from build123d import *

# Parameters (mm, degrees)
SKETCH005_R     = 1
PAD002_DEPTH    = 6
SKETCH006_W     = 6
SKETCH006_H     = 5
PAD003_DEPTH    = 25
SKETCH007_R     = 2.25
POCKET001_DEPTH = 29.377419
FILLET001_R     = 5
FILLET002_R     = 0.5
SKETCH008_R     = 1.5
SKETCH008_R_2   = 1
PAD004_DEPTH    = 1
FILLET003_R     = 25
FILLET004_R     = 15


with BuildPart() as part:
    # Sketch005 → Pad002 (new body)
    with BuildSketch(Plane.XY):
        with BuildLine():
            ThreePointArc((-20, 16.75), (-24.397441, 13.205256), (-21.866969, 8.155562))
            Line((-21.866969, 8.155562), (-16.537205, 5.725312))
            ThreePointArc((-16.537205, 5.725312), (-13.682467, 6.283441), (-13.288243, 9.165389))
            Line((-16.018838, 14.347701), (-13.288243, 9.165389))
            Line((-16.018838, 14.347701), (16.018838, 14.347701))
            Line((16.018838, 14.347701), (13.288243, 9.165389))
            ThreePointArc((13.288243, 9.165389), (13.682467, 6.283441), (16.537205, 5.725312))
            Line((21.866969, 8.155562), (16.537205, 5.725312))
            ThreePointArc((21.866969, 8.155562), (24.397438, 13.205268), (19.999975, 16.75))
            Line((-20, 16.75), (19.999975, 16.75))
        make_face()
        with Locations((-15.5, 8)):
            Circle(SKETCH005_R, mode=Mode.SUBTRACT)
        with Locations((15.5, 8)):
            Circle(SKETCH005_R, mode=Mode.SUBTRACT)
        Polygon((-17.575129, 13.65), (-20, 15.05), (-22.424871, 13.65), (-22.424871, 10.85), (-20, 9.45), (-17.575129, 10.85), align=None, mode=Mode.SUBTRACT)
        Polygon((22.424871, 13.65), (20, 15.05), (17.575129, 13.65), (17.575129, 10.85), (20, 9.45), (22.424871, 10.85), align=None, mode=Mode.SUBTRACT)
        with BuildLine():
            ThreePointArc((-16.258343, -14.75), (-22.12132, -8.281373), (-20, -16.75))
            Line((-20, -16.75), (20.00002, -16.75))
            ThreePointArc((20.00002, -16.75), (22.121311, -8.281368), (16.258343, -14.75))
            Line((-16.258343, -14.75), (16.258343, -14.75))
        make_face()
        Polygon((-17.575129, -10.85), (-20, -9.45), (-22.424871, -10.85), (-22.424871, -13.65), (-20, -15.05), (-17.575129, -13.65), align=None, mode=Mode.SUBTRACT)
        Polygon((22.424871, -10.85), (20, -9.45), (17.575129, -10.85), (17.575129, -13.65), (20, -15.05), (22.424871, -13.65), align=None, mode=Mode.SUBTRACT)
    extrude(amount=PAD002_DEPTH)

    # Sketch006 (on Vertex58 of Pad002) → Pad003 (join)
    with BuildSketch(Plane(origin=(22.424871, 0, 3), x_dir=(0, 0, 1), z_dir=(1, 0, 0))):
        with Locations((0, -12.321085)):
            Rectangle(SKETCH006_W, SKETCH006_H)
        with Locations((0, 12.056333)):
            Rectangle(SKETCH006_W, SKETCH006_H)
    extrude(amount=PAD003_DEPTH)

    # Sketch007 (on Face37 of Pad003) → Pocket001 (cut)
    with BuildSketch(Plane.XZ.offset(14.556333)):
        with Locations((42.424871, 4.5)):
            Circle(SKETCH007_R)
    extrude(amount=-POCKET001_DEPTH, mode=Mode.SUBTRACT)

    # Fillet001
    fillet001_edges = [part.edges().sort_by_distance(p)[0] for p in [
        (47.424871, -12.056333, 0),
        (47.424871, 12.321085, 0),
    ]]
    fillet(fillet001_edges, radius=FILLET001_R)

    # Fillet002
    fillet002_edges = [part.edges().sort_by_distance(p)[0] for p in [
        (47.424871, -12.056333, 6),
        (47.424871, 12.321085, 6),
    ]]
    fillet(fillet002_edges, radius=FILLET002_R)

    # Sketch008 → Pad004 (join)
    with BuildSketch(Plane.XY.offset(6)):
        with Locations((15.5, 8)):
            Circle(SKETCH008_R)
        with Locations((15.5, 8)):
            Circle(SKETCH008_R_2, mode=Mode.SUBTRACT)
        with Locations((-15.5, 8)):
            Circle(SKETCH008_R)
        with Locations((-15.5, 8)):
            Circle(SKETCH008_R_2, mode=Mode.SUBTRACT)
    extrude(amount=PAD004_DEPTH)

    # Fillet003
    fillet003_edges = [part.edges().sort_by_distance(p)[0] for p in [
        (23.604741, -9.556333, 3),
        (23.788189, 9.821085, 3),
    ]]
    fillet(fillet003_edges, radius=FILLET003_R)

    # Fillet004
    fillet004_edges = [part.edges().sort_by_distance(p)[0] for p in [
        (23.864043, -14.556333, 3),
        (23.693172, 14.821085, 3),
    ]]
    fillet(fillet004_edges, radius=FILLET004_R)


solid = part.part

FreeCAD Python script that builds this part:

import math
import FreeCAD as App
import Part
import Sketcher
Q = App.Units.Quantity


def edges_at(feature, points):
    """Names of the edges that pass closest to the given points."""
    edges = feature.Shape.Edges
    near = lambda p: min(range(len(edges)), key=lambda i: edges[i].distToShape(Part.Vertex(*p))[0])
    return sorted({f"Edge{near(p) + 1}" for p in points})


def add_polygon(sketch, points):
    """Adds a closed chain of lines whose ends are joined by coincident constraints."""
    first, n = sketch.GeometryCount, len(points)
    for a, b in zip(points, points[1:] + points[:1]):
        sketch.addGeometry(Part.LineSegment(App.Vector(*a, 0), App.Vector(*b, 0)), False)
    for i in range(n):
        sketch.addConstraint(Sketcher.Constraint("Coincident", first + i, 2, first + (i + 1) % n, 1))

doc = App.newDocument("Part")
body = doc.addObject("PartDesign::Body", "Body")
body.AllowCompound = True

# Sketch on XY plane
sketch1 = body.newObject("Sketcher::SketchObject", "Sketch")
sketch1.AttachmentSupport = (doc.getObject("XY_Plane"), [""])
sketch1.MapMode = "FlatFace"
sketch1.addGeometry(Part.ArcOfCircle(Part.Circle(App.Vector(-20, 12.3, 0), App.Vector(0, 0, 1), 4.5), math.radians(90), math.radians(245)), False)  # 0
sketch1.addGeometry(Part.LineSegment(App.Vector(-21.9, 8.2, 0), App.Vector(-16.5, 5.7, 0)), False)  # 1
sketch1.addGeometry(Part.ArcOfCircle(Part.Circle(App.Vector(-15.5, 8, 0), App.Vector(0, 0, 1), 2.5), math.radians(-115), math.radians(28)), False)  # 2
sketch1.addGeometry(Part.LineSegment(App.Vector(-13.3, 9.2, 0), App.Vector(-16, 14.3, 0)), False)  # 3
sketch1.addGeometry(Part.LineSegment(App.Vector(-16, 14.3, 0), App.Vector(16, 14.3, 0)), False)  # 4
sketch1.addGeometry(Part.LineSegment(App.Vector(16, 14.3, 0), App.Vector(13.3, 9.2, 0)), False)  # 5
sketch1.addGeometry(Part.ArcOfCircle(Part.Circle(App.Vector(15.5, 8, 0), App.Vector(0, 0, 1), 2.5), math.radians(152), math.radians(295)), False)  # 6
sketch1.addGeometry(Part.LineSegment(App.Vector(16.5, 5.7, 0), App.Vector(21.9, 8.2, 0)), False)  # 7
sketch1.addGeometry(Part.ArcOfCircle(Part.Circle(App.Vector(20, 12.3, 0), App.Vector(0, 0, 1), 4.5), math.radians(-65), math.radians(90)), False)  # 8
sketch1.addGeometry(Part.LineSegment(App.Vector(20, 16.8, 0), App.Vector(-20, 16.8, 0)), False)  # 9
sketch1.addGeometry(Part.Circle(App.Vector(-15.5, 8, 0), App.Vector(0, 0, 1), 1), False)  # 10
sketch1.addGeometry(Part.Circle(App.Vector(15.5, 8, 0), App.Vector(0, 0, 1), 1), False)  # 11
add_polygon(sketch1, [(-20, 15.1), (-17.6, 13.7), (-17.6, 10.8), (-20, 9.4), (-22.4, 10.8), (-22.4, 13.7)])  # lines 12-17
add_polygon(sketch1, [(20, 15.1), (22.4, 13.7), (22.4, 10.8), (20, 9.4), (17.6, 10.8), (17.6, 13.7)])  # lines 18-23
sketch1.addGeometry(Part.ArcOfCircle(Part.Circle(App.Vector(-20, -12.3, 0), App.Vector(0, 0, 1), 4.5), math.radians(-34), math.radians(270)), False)  # 24
sketch1.addGeometry(Part.LineSegment(App.Vector(-20, -16.8, 0), App.Vector(20, -16.8, 0)), False)  # 25
sketch1.addGeometry(Part.ArcOfCircle(Part.Circle(App.Vector(20, -12.3, 0), App.Vector(0, 0, 1), 4.5), math.radians(-90), math.radians(214)), False)  # 26
sketch1.addGeometry(Part.LineSegment(App.Vector(16.3, -14.8, 0), App.Vector(-16.3, -14.8, 0)), False)  # 27
add_polygon(sketch1, [(-20, -9.4), (-17.6, -10.8), (-17.6, -13.7), (-20, -15.1), (-22.4, -13.7), (-22.4, -10.8)])  # lines 28-33
add_polygon(sketch1, [(20, -9.4), (22.4, -10.8), (22.4, -13.7), (20, -15.1), (17.6, -13.7), (17.6, -10.8)])  # lines 34-39
sketch1.addConstraint(Sketcher.Constraint("Tangent", 0, 2, 1, 1))
sketch1.addConstraint(Sketcher.Constraint("Tangent", 1, 2, 2, 1))
sketch1.addConstraint(Sketcher.Constraint("Tangent", 2, 2, 3, 1))
sketch1.addConstraint(Sketcher.Constraint("Coincident", 3, 2, 4, 1))
sketch1.addConstraint(Sketcher.Constraint("Coincident", 4, 2, 5, 1))
sketch1.addConstraint(Sketcher.Constraint("Tangent", 5, 2, 6, 1))
sketch1.addConstraint(Sketcher.Constraint("Tangent", 6, 2, 7, 1))
sketch1.addConstraint(Sketcher.Constraint("Tangent", 7, 2, 8, 1))
sketch1.addConstraint(Sketcher.Constraint("Coincident", 8, 2, 9, 1))
sketch1.addConstraint(Sketcher.Constraint("Tangent", 9, 2, 0, 1))
sketch1.addConstraint(Sketcher.Constraint("Tangent", 24, 2, 25, 1))
sketch1.addConstraint(Sketcher.Constraint("Coincident", 25, 2, 26, 1))
sketch1.addConstraint(Sketcher.Constraint("Coincident", 26, 2, 27, 1))
sketch1.addConstraint(Sketcher.Constraint("Coincident", 27, 2, 24, 1))
sketch1.addConstraint(Sketcher.Constraint("Horizontal", 4))
sketch1.addConstraint(Sketcher.Constraint("Horizontal", 9))
sketch1.addConstraint(Sketcher.Constraint("Vertical", 13))
sketch1.addConstraint(Sketcher.Constraint("Vertical", 16))
sketch1.addConstraint(Sketcher.Constraint("Vertical", 19))
sketch1.addConstraint(Sketcher.Constraint("Vertical", 22))
sketch1.addConstraint(Sketcher.Constraint("Horizontal", 25))
sketch1.addConstraint(Sketcher.Constraint("Horizontal", 27))
sketch1.addConstraint(Sketcher.Constraint("Vertical", 29))
sketch1.addConstraint(Sketcher.Constraint("Vertical", 32))
sketch1.addConstraint(Sketcher.Constraint("Vertical", 35))
sketch1.addConstraint(Sketcher.Constraint("Vertical", 38))
sketch1.addConstraint(Sketcher.Constraint("Coincident", 10, 3, 2, 3))
sketch1.addConstraint(Sketcher.Constraint("Coincident", 11, 3, 6, 3))
sketch1.addConstraint(Sketcher.Constraint("Equal", 2, 6))
sketch1.addConstraint(Sketcher.Constraint("Equal", 0, 8))
sketch1.addConstraint(Sketcher.Constraint("Equal", 10, 11))
sketch1.addConstraint(Sketcher.Constraint("Equal", 8, 24))
sketch1.addConstraint(Sketcher.Constraint("Equal", 24, 26))
sketch1.addConstraint(Sketcher.Constraint("Symmetric", 8, 3, 24, 3, -1, 1))
sketch1.addConstraint(Sketcher.Constraint("Symmetric", 21, 2, 28, 2, -1, 1))
sketch1.addConstraint(Sketcher.Constraint("Symmetric", 23, 2, 30, 2, -1, 1))
sketch1.addConstraint(Sketcher.Constraint("Symmetric", 18, 2, 31, 2, -1, 1))
sketch1.addConstraint(Sketcher.Constraint("Symmetric", 20, 2, 33, 2, -1, 1))
sketch1.addConstraint(Sketcher.Constraint("Symmetric", 15, 2, 34, 2, -1, 1))
sketch1.addConstraint(Sketcher.Constraint("Symmetric", 17, 2, 36, 2, -1, 1))
sketch1.addConstraint(Sketcher.Constraint("Symmetric", 12, 2, 37, 2, -1, 1))
sketch1.addConstraint(Sketcher.Constraint("Symmetric", 14, 2, 39, 2, -1, 1))
sketch1.addConstraint(Sketcher.Constraint("Symmetric", 2, 3, 6, 3, -2))
sketch1.addConstraint(Sketcher.Constraint("Symmetric", 16, 2, 18, 2, -2))
sketch1.addConstraint(Sketcher.Constraint("Symmetric", 14, 2, 20, 2, -2))
sketch1.addConstraint(Sketcher.Constraint("Symmetric", 13, 2, 21, 2, -2))
sketch1.addConstraint(Sketcher.Constraint("Symmetric", 17, 2, 23, 2, -2))
sketch1.addConstraint(Sketcher.Constraint("Parallel", 12, 15))
sketch1.addConstraint(Sketcher.Constraint("Parallel", 14, 17))
sketch1.addConstraint(Sketcher.Constraint("Parallel", 15, 18))
sketch1.addConstraint(Sketcher.Constraint("Parallel", 17, 20))
sketch1.addConstraint(Sketcher.Constraint("Parallel", 20, 23))
sketch1.addConstraint(Sketcher.Constraint("Parallel", 23, 30))
sketch1.addConstraint(Sketcher.Constraint("Parallel", 30, 33))
sketch1.addConstraint(Sketcher.Constraint("Parallel", 33, 36))
sketch1.addConstraint(Sketcher.Constraint("Parallel", 36, 39))
sketch1.addConstraint(Sketcher.Constraint("Horizontal", 2, 2, 5, 2))
sketch1.addConstraint(Sketcher.Constraint("Horizontal", 1, 2, 6, 2))
sketch1.addConstraint(Sketcher.Constraint("Horizontal", 13, 2, 15, 2))
sketch1.addConstraint(Sketcher.Constraint("Horizontal", 12, 2, 16, 2))
sketch1.addConstraint(Sketcher.Constraint("Vertical", 8, 3, 26, 3))
sketch1.addConstraint(Sketcher.Constraint("Vertical", 9, 2, 14, 2))
sketch1.addConstraint(Sketcher.Constraint("Equal", 1, 3))
sketch1.addConstraint(Sketcher.Constraint("Diameter", 10, 2.0))
sketch1.addConstraint(Sketcher.Constraint("Radius", 0, 4.5))
sketch1.addConstraint(Sketcher.Constraint("Radius", 2, 2.5))
sketch1.addConstraint(Sketcher.Constraint("Angle", 12, Q("-30.000001 deg")))
sketch1.addConstraint(Sketcher.Constraint("DistanceY", 13, 2, 13, 1, 2.8))
sketch1.addConstraint(Sketcher.Constraint("DistanceX", 0, 3, -1, 1, 20.0))
sketch1.addConstraint(Sketcher.Constraint("DistanceY", -1, 1, 2, 3, 8.0))
sketch1.addConstraint(Sketcher.Constraint("DistanceX", 2, 3, 6, 3, 31.0))
sketch1.addConstraint(Sketcher.Constraint("DistanceY", 25, 2, 26, 2, 2.0))
sketch1.addConstraint(Sketcher.Constraint("Distance", 12, 2.8))
sketch1.addConstraint(Sketcher.Constraint("DistanceY", 24, 3, 0, 3, 24.5))
sketch1.addConstraint(Sketcher.Constraint("DistanceY", 0, 3, 12, 2, 1.4))
sketch1.addConstraint(Sketcher.Constraint("DistanceX", 25, 1, 25, 2, 40.00002))
sketch1.addConstraint(Sketcher.Constraint("DistanceY", -1, 1, 3, 2, 14.347701))
sketch1.addConstraint(Sketcher.Constraint("DistanceX", 9, 2, 9, 1, 39.999975))
pad1 = body.newObject("PartDesign::Pad", "Pad")
pad1.Profile = sketch1
pad1.Length = 6

# Sketch on YZ plane
sketch2 = body.newObject("Sketcher::SketchObject", "Sketch001")
sketch2.AttachmentSupport = (doc.getObject("YZ_Plane"), [""])
sketch2.MapMode = "FlatFace"
sketch2.AttachmentOffset = App.Placement(App.Vector(0, 0, 22.424871), App.Rotation())
add_polygon(sketch2, [(10, 0), (15, 0), (15, 6), (10, 6)])  # lines 0-3
add_polygon(sketch2, [(-15, 0), (-10, 0), (-10, 6), (-15, 6)])  # lines 4-7
sketch2.addConstraint(Sketcher.Constraint("Horizontal", 0))
sketch2.addConstraint(Sketcher.Constraint("Vertical", 1))
sketch2.addConstraint(Sketcher.Constraint("Horizontal", 2))
sketch2.addConstraint(Sketcher.Constraint("Vertical", 3))
sketch2.addConstraint(Sketcher.Constraint("Horizontal", 4))
sketch2.addConstraint(Sketcher.Constraint("Vertical", 5))
sketch2.addConstraint(Sketcher.Constraint("Horizontal", 6))
sketch2.addConstraint(Sketcher.Constraint("Vertical", 7))
sketch2.addConstraint(Sketcher.Constraint("PointOnObject", 0, 2, -1))
sketch2.addConstraint(Sketcher.Constraint("PointOnObject", 4, 2, -1))
sketch2.addConstraint(Sketcher.Constraint("Horizontal", 2, 2, 5, 2))
sketch2.addConstraint(Sketcher.Constraint("Equal", 2, 4))
sketch2.addConstraint(Sketcher.Constraint("DistanceX", 0, 1, 0, 2, 5.0))
sketch2.addConstraint(Sketcher.Constraint("DistanceY", 1, 1, 1, 2, 6.0))
sketch2.addConstraint(Sketcher.Constraint("DistanceX", -1, 1, 0, 2, 14.821085))
sketch2.addConstraint(Sketcher.Constraint("DistanceX", 4, 2, -1, 1, 9.556333))
pad2 = body.newObject("PartDesign::Pad", "Pad001")
pad2.Profile = sketch2
pad2.Length = 25

# Sketch on XZ plane
sketch3 = body.newObject("Sketcher::SketchObject", "Sketch002")
sketch3.AttachmentSupport = (doc.getObject("XZ_Plane"), [""])
sketch3.MapMode = "FlatFace"
sketch3.AttachmentOffset = App.Placement(App.Vector(0, 0, 14.556333), App.Rotation())
sketch3.addGeometry(Part.Circle(App.Vector(42.4, 4.5, 0), App.Vector(0, 0, 1), 2.2), False)
sketch3.addConstraint(Sketcher.Constraint("Diameter", 0, 4.5))
sketch3.addConstraint(Sketcher.Constraint("DistanceY", -1, 1, 0, 3, 4.5))
sketch3.addConstraint(Sketcher.Constraint("DistanceX", -1, 1, 0, 3, 42.424871))
pocket1 = body.newObject("PartDesign::Pocket", "Pocket")
pocket1.Profile = sketch3
pocket1.Length = 29.377419
doc.recompute()

fillet = body.newObject("PartDesign::Fillet", "Fillet")
fillet.Base = (pocket1, edges_at(pocket1, [(47.425, -12.056, 0), (47.425, 12.321, 0)]))
fillet.Radius = 5
doc.recompute()

fillet2 = body.newObject("PartDesign::Fillet", "Fillet001")
fillet2.Base = (fillet, edges_at(fillet, [(47.425, -12.056, 6), (47.425, 12.321, 6)]))
fillet2.Radius = 0.5

# Sketch on XY plane
sketch4 = body.newObject("Sketcher::SketchObject", "Sketch003")
sketch4.AttachmentSupport = (doc.getObject("XY_Plane"), [""])
sketch4.MapMode = "FlatFace"
sketch4.AttachmentOffset = App.Placement(App.Vector(0, 0, 6), App.Rotation())
sketch4.addGeometry(Part.Circle(App.Vector(15.5, 8, 0), App.Vector(0, 0, 1), 1.5), False)
sketch4.addGeometry(Part.Circle(App.Vector(15.5, 8, 0), App.Vector(0, 0, 1), 1), False)
sketch4.addGeometry(Part.Circle(App.Vector(-15.5, 8, 0), App.Vector(0, 0, 1), 1.5), False)
sketch4.addGeometry(Part.Circle(App.Vector(-15.5, 8, 0), App.Vector(0, 0, 1), 1), False)
sketch4.addConstraint(Sketcher.Constraint("Coincident", 1, 3, 0, 3))
sketch4.addConstraint(Sketcher.Constraint("Coincident", 3, 3, 2, 3))
sketch4.addConstraint(Sketcher.Constraint("Equal", 0, 2))
sketch4.addConstraint(Sketcher.Constraint("Equal", 1, 3))
sketch4.addConstraint(Sketcher.Constraint("Symmetric", 0, 3, 2, 3, -2))
sketch4.addConstraint(Sketcher.Constraint("Diameter", 0, 3.0))
sketch4.addConstraint(Sketcher.Constraint("Diameter", 1, 2.0))
sketch4.addConstraint(Sketcher.Constraint("DistanceY", -1, 1, 0, 3, 8.0))
sketch4.addConstraint(Sketcher.Constraint("DistanceX", 2, 3, 0, 3, 31.0))
pad3 = body.newObject("PartDesign::Pad", "Pad002")
pad3.Profile = sketch4
pad3.Length = 1
doc.recompute()

fillet3 = body.newObject("PartDesign::Fillet", "Fillet002")
fillet3.Base = (pad3, edges_at(pad3, [(23.605, -9.556, 3), (23.788, 9.821, 3)]))
fillet3.Radius = 25
doc.recompute()

fillet4 = body.newObject("PartDesign::Fillet", "Fillet003")
fillet4.Base = (fillet3, edges_at(fillet3, [(23.864, -14.556, 3), (23.693, 14.821, 3)]))
fillet4.Radius = 15

doc.recompute()
